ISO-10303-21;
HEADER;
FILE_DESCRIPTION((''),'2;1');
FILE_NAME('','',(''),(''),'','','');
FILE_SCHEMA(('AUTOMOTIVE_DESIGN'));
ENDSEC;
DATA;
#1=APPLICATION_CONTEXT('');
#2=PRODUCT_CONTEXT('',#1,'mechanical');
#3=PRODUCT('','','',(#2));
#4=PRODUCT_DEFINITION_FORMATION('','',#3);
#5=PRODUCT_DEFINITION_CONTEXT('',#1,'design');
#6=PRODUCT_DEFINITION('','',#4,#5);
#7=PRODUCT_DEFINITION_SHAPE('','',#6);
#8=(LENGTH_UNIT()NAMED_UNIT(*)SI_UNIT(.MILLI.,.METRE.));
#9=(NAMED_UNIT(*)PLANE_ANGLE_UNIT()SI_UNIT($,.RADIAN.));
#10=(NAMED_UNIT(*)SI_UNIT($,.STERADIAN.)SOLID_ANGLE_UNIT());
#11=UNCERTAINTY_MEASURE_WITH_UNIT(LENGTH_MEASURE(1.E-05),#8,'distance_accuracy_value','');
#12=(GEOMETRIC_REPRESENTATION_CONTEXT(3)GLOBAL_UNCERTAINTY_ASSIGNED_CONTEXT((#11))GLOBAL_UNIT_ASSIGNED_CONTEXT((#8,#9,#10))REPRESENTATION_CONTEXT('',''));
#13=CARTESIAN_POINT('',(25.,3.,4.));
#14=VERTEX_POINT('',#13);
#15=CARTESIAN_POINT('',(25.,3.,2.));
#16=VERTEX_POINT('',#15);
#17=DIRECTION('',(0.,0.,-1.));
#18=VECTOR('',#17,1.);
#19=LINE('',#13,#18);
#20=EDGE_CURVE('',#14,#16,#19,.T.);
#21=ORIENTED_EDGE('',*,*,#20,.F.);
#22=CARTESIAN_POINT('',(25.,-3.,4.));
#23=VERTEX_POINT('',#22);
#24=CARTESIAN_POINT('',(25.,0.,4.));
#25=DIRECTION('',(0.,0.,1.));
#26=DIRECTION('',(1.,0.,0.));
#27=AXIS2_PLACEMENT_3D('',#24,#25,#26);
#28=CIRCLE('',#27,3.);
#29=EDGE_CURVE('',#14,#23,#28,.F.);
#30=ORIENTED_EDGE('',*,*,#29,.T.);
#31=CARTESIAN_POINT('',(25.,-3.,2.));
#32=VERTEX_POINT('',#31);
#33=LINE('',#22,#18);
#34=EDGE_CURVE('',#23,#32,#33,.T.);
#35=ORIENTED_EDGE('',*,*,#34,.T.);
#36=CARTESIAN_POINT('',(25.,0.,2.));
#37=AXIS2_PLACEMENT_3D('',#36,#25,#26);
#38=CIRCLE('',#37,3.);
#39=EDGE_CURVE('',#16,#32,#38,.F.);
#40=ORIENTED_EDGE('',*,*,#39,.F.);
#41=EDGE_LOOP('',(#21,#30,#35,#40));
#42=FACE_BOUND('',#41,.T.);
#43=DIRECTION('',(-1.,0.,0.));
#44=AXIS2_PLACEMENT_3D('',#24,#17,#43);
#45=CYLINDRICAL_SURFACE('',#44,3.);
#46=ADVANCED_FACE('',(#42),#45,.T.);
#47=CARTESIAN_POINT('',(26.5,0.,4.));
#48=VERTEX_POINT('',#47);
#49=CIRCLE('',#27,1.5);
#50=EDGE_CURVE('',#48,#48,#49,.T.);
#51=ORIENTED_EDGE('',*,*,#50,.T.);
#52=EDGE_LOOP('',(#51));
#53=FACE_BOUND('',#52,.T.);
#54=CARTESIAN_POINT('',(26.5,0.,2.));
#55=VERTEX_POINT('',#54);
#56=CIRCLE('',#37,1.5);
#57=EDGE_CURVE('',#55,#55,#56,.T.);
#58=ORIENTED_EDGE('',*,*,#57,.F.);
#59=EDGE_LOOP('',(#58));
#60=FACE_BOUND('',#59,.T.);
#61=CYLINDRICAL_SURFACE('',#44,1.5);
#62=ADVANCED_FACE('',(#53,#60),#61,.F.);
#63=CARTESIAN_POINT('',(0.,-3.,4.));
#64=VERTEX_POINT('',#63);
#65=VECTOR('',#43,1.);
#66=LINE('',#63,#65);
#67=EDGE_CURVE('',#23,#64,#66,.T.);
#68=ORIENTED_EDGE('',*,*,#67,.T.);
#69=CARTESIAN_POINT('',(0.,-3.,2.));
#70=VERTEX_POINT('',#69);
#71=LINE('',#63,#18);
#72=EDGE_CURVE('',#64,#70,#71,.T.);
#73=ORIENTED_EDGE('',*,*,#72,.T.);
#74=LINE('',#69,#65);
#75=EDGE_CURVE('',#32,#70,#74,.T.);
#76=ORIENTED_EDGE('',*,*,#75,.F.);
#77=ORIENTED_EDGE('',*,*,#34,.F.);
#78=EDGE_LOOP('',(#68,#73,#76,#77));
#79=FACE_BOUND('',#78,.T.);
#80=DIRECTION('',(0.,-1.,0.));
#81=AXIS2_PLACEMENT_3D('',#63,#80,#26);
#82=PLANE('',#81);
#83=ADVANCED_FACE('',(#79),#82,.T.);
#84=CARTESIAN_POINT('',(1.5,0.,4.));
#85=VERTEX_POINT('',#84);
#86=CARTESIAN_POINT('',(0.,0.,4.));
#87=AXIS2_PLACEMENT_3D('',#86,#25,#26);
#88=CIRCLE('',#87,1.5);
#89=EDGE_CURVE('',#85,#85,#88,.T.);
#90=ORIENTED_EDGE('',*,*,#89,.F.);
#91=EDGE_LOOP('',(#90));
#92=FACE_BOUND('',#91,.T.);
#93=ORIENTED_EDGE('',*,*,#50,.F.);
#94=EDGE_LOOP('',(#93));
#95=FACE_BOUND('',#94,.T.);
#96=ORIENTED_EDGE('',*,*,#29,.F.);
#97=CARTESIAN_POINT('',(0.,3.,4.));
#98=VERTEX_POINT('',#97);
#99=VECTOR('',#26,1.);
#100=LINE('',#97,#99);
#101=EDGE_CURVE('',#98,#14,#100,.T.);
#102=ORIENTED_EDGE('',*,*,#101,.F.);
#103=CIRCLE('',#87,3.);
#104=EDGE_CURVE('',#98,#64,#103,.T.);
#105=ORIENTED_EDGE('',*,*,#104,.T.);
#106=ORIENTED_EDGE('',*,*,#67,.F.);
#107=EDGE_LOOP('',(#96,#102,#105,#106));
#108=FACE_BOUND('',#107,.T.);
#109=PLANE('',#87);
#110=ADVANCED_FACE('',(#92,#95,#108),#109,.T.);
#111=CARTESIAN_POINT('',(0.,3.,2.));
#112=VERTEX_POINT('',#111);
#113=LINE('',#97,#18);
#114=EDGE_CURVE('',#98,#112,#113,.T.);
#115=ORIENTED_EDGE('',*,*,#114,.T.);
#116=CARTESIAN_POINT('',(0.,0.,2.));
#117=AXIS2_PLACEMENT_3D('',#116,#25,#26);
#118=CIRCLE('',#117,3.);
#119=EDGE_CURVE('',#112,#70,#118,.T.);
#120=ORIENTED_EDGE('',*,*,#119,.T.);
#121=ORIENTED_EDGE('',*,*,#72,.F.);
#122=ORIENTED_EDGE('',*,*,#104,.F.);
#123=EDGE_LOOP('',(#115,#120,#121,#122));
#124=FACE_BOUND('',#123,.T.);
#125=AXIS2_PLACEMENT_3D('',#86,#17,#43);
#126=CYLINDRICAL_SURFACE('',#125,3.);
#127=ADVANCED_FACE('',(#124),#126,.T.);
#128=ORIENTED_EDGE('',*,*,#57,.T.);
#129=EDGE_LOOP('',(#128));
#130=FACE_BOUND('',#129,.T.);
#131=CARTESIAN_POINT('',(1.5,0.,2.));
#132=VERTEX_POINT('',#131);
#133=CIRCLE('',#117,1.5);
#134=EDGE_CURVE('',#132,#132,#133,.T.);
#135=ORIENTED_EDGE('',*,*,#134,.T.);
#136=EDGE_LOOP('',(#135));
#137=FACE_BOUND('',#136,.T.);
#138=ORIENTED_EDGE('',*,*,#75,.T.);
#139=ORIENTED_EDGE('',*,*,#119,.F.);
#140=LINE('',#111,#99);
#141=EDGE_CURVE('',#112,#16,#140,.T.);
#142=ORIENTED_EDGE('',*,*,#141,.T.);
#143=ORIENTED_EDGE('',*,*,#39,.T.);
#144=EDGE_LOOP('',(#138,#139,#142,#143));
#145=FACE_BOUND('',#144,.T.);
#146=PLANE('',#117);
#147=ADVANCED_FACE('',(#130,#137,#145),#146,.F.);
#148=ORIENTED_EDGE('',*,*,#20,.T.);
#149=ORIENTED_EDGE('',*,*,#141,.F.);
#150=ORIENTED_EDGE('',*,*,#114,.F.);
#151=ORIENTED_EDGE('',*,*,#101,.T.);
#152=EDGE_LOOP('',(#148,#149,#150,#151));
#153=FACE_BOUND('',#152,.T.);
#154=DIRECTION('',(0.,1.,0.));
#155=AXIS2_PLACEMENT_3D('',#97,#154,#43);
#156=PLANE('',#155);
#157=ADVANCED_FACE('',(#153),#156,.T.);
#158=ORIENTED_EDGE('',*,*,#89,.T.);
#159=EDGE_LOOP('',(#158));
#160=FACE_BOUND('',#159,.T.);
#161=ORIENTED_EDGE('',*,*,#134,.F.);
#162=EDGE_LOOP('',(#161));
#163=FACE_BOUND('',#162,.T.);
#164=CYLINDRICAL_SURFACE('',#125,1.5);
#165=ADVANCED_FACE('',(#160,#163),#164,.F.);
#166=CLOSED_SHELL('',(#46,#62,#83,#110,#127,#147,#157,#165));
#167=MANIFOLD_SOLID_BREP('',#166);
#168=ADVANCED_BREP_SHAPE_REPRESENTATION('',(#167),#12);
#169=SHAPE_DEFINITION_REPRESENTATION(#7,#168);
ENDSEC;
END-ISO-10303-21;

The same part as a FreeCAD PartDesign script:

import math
import FreeCAD as App
import Part
import Sketcher

V = App.Vector

doc = App.newDocument("Part")
params = doc.addObject("Spreadsheet::Sheet", "Params")
for row, (alias, value) in enumerate([
    ("sketch1_diameter", "3 mm"),
    ("sketch1_radius", "3 mm"),
    ("sketch1_width", "25 mm"),
    ("pad1_length", "4 mm"),
    ("sketch2_diameter", "3 mm"),
    ("sketch2_radius", "3 mm"),
    ("sketch2_width", "25 mm"),
    ("pocket1_length", "2 mm"),
], start=1):
    params.set(f"A{row}", alias)
    params.set(f"B{row}", "=" + value)
    params.setAlias(f"B{row}", alias)

body = doc.addObject("PartDesign::Body", "Body")

# Sketch on XY plane
sketch1 = doc.addObject("Sketcher::SketchObject", "Sketch")
body.addObject(sketch1)
sketch1.AttachmentSupport = (doc.XY_Plane, [""])
sketch1.MapMode = "FlatFace"
sketch1.addGeometry([
    Part.LineSegment(V(25, 3, 0), V(0, 3, 0)),  # 0
    Part.ArcOfCircle(Part.Circle(V(0, 0, 0), V(0, 0, 1), 3), math.radians(90), math.radians(270)),  # 1
    Part.LineSegment(V(0, -3, 0), V(25, -3, 0)),  # 2
    Part.ArcOfCircle(Part.Circle(V(25, 0, 0), V(0, 0, 1), 3), math.radians(-90), math.radians(90)),  # 3
    Part.Circle(V(25, 0, 0), V(0, 0, 1), 1.5),  # 4
    Part.Circle(V(0, 0, 0), V(0, 0, 1), 1.5),  # 5
], False)
sketch1.addConstraint([
    Sketcher.Constraint("Tangent", 0, 2, 1, 1),
    Sketcher.Constraint("Tangent", 1, 2, 2, 1),
    Sketcher.Constraint("Tangent", 2, 2, 3, 1),
    Sketcher.Constraint("Tangent", 3, 2, 0, 1),
    Sketcher.Constraint("Horizontal", 0),
    Sketcher.Constraint("Horizontal", 2),
    Sketcher.Constraint("Coincident", 1, 3, -1, 1),
    Sketcher.Constraint("Coincident", 5, 3, -1, 1),
    Sketcher.Constraint("Coincident", 4, 3, 3, 3),
    Sketcher.Constraint("Equal", 4, 5),
    Sketcher.Constraint("Diameter", 4, 3.0),
    Sketcher.Constraint("Radius", 1, 3.0),
    Sketcher.Constraint("DistanceX", 0, 2, 0, 1, 25.0),
])
sketch1.setExpression("Constraints[10]", "Params.sketch1_diameter")
sketch1.setExpression("Constraints[11]", "Params.sketch1_radius")
sketch1.setExpression("Constraints[12]", "Params.sketch1_width")
pad1 = doc.addObject("PartDesign::Pad", "Pad")
body.addObject(pad1)
pad1.Profile = sketch1
pad1.setExpression("Length", "Params.pad1_length")

# Sketch on XY plane
sketch2 = doc.addObject("Sketcher::SketchObject", "Sketch001")
body.addObject(sketch2)
sketch2.AttachmentSupport = (doc.XY_Plane, [""])
sketch2.MapMode = "FlatFace"
sketch2.addGeometry([
    Part.LineSegment(V(25, 3, 0), V(0, 3, 0)),  # 0
    Part.ArcOfCircle(Part.Circle(V(0, 0, 0), V(0, 0, 1), 3), math.radians(90), math.radians(270)),  # 1
    Part.LineSegment(V(0, -3, 0), V(25, -3, 0)),  # 2
    Part.ArcOfCircle(Part.Circle(V(25, 0, 0), V(0, 0, 1), 3), math.radians(-90), math.radians(90)),  # 3
    Part.Circle(V(25, 0, 0), V(0, 0, 1), 1.5),  # 4
    Part.Circle(V(0, 0, 0), V(0, 0, 1), 1.5),  # 5
], False)
sketch2.addConstraint([
    Sketcher.Constraint("Tangent", 0, 2, 1, 1),
    Sketcher.Constraint("Tangent", 1, 2, 2, 1),
    Sketcher.Constraint("Tangent", 2, 2, 3, 1),
    Sketcher.Constraint("Tangent", 3, 2, 0, 1),
    Sketcher.Constraint("Horizontal", 0),
    Sketcher.Constraint("Horizontal", 2),
    Sketcher.Constraint("Coincident", 1, 3, -1, 1),
    Sketcher.Constraint("Coincident", 5, 3, -1, 1),
    Sketcher.Constraint("Coincident", 4, 3, 3, 3),
    Sketcher.Constraint("Equal", 4, 5),
    Sketcher.Constraint("Diameter", 4, 3.0),
    Sketcher.Constraint("Radius", 1, 3.0),
    Sketcher.Constraint("DistanceX", 0, 2, 0, 1, 25.0),
])
sketch2.setExpression("Constraints[10]", "Params.sketch2_diameter")
sketch2.setExpression("Constraints[11]", "Params.sketch2_radius")
sketch2.setExpression("Constraints[12]", "Params.sketch2_width")
pocket1 = doc.addObject("PartDesign::Pocket", "Pocket")
body.addObject(pocket1)
pocket1.Profile = sketch2
pocket1.setExpression("Length", "Params.pocket1_length")
pocket1.Reversed = True

doc.recompute()
